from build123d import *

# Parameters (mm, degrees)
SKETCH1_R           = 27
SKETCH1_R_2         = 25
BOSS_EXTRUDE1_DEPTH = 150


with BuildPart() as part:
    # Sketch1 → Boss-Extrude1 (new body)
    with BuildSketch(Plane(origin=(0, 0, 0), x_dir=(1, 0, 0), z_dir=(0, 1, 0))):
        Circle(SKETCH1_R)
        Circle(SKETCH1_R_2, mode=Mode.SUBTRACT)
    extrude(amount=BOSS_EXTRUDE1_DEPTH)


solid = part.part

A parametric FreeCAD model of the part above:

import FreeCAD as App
import Part
import Sketcher
from FreeCAD import Vector

doc = App.newDocument("Part")
body = doc.addObject("PartDesign::Body", "Body")

sketch1 = body.newObject("Sketcher::SketchObject", "Sketch")
sketch1.AttachmentSupport = (doc.getObject("XZ_Plane"), [""])
sketch1.MapMode = "FlatFace"
sketch1.addGeometry(Part.Circle(Vector(0, 0, 0), Vector(0, 0, 1), 27), False)
sketch1.addGeometry(Part.Circle(Vector(0, 0, 0), Vector(0, 0, 1), 25), False)
sketch1.addConstraint(Sketcher.Constraint("Coincident", 0, 3, -1, 1))
sketch1.addConstraint(Sketcher.Constraint("Coincident", 1, 3, -1, 1))
sketch1.addConstraint(Sketcher.Constraint("Diameter", 0, 54.0))
sketch1.addConstraint(Sketcher.Constraint("Diameter", 1, 50.0))
pad1 = body.newObject("PartDesign::Pad", "Pad")
pad1.Profile = sketch1
pad1.Length = 150
pad1.Reversed = True

doc.recompute()
